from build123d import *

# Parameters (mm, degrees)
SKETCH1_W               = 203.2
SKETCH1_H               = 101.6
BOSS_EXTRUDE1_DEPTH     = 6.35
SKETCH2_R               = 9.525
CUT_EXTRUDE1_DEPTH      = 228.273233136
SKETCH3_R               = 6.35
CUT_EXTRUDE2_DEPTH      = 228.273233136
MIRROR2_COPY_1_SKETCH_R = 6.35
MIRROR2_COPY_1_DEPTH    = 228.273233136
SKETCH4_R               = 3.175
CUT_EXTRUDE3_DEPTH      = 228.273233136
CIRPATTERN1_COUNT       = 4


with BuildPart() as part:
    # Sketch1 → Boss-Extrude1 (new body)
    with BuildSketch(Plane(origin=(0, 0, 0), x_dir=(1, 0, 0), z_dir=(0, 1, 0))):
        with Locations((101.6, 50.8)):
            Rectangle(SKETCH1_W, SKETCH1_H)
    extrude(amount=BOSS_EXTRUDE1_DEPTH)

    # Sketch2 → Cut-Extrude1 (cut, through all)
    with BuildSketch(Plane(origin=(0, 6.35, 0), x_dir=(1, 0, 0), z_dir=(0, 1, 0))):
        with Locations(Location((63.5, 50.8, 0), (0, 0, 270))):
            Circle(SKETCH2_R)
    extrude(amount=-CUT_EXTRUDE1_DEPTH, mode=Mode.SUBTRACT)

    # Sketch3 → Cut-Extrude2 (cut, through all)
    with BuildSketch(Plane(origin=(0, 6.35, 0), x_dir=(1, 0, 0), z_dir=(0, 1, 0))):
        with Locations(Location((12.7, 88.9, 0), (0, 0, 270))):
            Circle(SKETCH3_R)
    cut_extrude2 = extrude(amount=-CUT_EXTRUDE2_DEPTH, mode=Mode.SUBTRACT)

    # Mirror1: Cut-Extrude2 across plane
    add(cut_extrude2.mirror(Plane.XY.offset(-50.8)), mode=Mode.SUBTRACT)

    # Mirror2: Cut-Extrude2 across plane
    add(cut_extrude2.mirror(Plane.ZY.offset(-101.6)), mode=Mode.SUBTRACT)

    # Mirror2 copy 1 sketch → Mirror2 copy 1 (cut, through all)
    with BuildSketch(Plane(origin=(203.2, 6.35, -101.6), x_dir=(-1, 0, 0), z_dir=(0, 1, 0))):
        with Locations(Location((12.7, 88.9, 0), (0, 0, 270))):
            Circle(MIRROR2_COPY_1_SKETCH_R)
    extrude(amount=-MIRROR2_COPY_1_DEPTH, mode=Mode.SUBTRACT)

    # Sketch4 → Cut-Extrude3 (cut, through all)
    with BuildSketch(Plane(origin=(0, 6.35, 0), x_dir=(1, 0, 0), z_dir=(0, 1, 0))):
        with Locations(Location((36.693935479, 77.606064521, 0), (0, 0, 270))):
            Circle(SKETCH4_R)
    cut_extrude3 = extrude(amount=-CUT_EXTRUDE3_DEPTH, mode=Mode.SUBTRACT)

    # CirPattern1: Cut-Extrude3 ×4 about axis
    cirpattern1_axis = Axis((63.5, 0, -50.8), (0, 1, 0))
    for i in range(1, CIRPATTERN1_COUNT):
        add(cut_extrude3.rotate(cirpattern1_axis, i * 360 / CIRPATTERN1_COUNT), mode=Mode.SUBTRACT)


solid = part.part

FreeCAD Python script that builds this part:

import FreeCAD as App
import Part
import Sketcher
Q = App.Units.Quantity

doc = App.newDocument("Part")
params = doc.addObject("Spreadsheet::Sheet", "Params")
for row, (alias, value) in enumerate([
    ("sketch1_width", "8 in"),
    ("sketch1_height", "4 in"),
    ("pad1_length", "0.25 in"),
    ("sketch2_diameter", "0.75 in"),
    ("sketch3_diameter", "0.5 in"),
    ("sketch4_diameter", "0.5 in"),
    ("sketch5_diameter", "0.25 in"),
], start=1):
    params.set(f"A{row}", alias)
    params.set(f"B{row}", "=" + value)
    params.setAlias(f"B{row}", alias)

body = doc.addObject("PartDesign::Body", "Body")

# Sketch on XZ plane
sketch1 = body.newObject("Sketcher::SketchObject", "Sketch")
sketch1.AttachmentSupport = (doc.getObject("XZ_Plane"), [""])
sketch1.MapMode = "FlatFace"
sketch1.addGeometry([
    Part.LineSegment(App.Vector(0, -102, 0), App.Vector(0, 0, 0)),
    Part.LineSegment(App.Vector(0, 0, 0), App.Vector(203, 0, 0)),
    Part.LineSegment(App.Vector(203, 0, 0), App.Vector(203, -102, 0)),
    Part.LineSegment(App.Vector(203, -102, 0), App.Vector(0, -102, 0)),
], False)
sketch1.addConstraint([
    Sketcher.Constraint("Coincident", 0, 2, 1, 1),
    Sketcher.Constraint("Coincident", 1, 2, 2, 1),
    Sketcher.Constraint("Coincident", 2, 2, 3, 1),
    Sketcher.Constraint("Coincident", 3, 2, 0, 1),
    Sketcher.Constraint("Vertical", 0),
    Sketcher.Constraint("Horizontal", 1),
    Sketcher.Constraint("Vertical", 2),
    Sketcher.Constraint("Horizontal", 3),
    Sketcher.Constraint("Coincident", 0, 2, -1, 1),
    Sketcher.Constraint("DistanceX", 1, 1, 1, 2, Q("8 in")),
    Sketcher.Constraint("DistanceY", 0, 1, 0, 2, Q("4 in")),
])
sketch1.setExpression("Constraints[9]", "Params.sketch1_width")
sketch1.setExpression("Constraints[10]", "Params.sketch1_height")
pad1 = body.newObject("PartDesign::Pad", "Pad")
pad1.Profile = sketch1
pad1.setExpression("Length", "Params.pad1_length")
pad1.Reversed = True

# Sketch on XZ plane
sketch2 = body.newObject("Sketcher::SketchObject", "Sketch001")
sketch2.AttachmentSupport = (doc.getObject("XZ_Plane"), [""])
sketch2.MapMode = "FlatFace"
sketch2.AttachmentOffset = App.Placement(App.Vector(0, 0, -0.25 * 25.4), App.Rotation())
sketch2.addGeometry(Part.Circle(App.Vector(64, -51, 0), App.Vector(0, 0, 1), 10), False)
sketch2.addConstraint([
    Sketcher.Constraint("Diameter", 0, Q("0.75 in")),
    Sketcher.Constraint("DistanceY", 0, 3, -1, 1, Q("2 in")),
    Sketcher.Constraint("DistanceX", -1, 1, 0, 3, Q("2.5 in")),
])
sketch2.setExpression("Constraints[0]", "Params.sketch2_diameter")
pocket1 = body.newObject("PartDesign::Pocket", "Pocket")
pocket1.Profile = sketch2
pocket1.Type = "ThroughAll"
pocket1.Reversed = True

# Sketch on XZ plane
sketch3 = body.newObject("Sketcher::SketchObject", "Sketch002")
sketch3.AttachmentSupport = (doc.getObject("XZ_Plane"), [""])
sketch3.MapMode = "FlatFace"
sketch3.AttachmentOffset = App.Placement(App.Vector(0, 0, -0.25 * 25.4), App.Rotation())
sketch3.addGeometry(Part.Circle(App.Vector(13, -89, 0), App.Vector(0, 0, 1), 6), False)
sketch3.addConstraint([
    Sketcher.Constraint("Diameter", 0, Q("0.5 in")),
    Sketcher.Constraint("DistanceX", -1, 1, 0, 3, Q("0.5 in")),
    Sketcher.Constraint("DistanceY", 0, 3, -1, 1, Q("3.5 in")),
])
sketch3.setExpression("Constraints[0]", "Params.sketch3_diameter")
pocket2 = body.newObject("PartDesign::Pocket", "Pocket001")
pocket2.Profile = sketch3
pocket2.Type = "ThroughAll"
pocket2.Reversed = True
doc.recompute()

datumplane = body.newObject("PartDesign::Plane", "DatumPlane")
datumplane.AttachmentSupport = (doc.getObject("XY_Plane"), [""])
datumplane.MapMode = "FlatFace"
datumplane.AttachmentOffset = App.Placement(App.Vector(0, 0, -2 * 25.4), App.Rotation())
mirrored = body.newObject("PartDesign::Mirrored", "Mirrored")
mirrored.Originals = [pocket2]
mirrored.MirrorPlane = (datumplane, [""])
body.Tip = mirrored
doc.recompute()

datumplane2 = body.newObject("PartDesign::Plane", "DatumPlane001")
datumplane2.AttachmentSupport = (doc.getObject("YZ_Plane"), [""])
datumplane2.MapMode = "FlatFace"
datumplane2.AttachmentOffset = App.Placement(App.Vector(0, 0, 4 * 25.4), App.Rotation())
mirrored2 = body.newObject("PartDesign::Mirrored", "Mirrored001")
mirrored2.Originals = [pocket2]
mirrored2.MirrorPlane = (datumplane2, [""])
body.Tip = mirrored2

# Sketch on XZ plane
sketch4 = body.newObject("Sketcher::SketchObject", "Sketch003")
sketch4.AttachmentSupport = (doc.getObject("XZ_Plane"), [""])
sketch4.MapMode = "FlatFace"
sketch4.AttachmentOffset = App.Placement(App.Vector(0, 0, -0.25 * 25.4), App.Rotation())
sketch4.addGeometry(Part.Circle(App.Vector(190, -13, 0), App.Vector(0, 0, 1), 6), False)
sketch4.addConstraint([
    Sketcher.Constraint("Diameter", 0, Q("0.5 in")),
    Sketcher.Constraint("DistanceX", -1, 1, 0, 3, Q("7.5 in")),
    Sketcher.Constraint("DistanceY", 0, 3, -1, 1, Q("0.5 in")),
])
sketch4.setExpression("Constraints[0]", "Params.sketch4_diameter")
pocket3 = body.newObject("PartDesign::Pocket", "Pocket002")
pocket3.Profile = sketch4
pocket3.Type = "ThroughAll"
pocket3.Reversed = True

# Sketch on XZ plane
sketch5 = body.newObject("Sketcher::SketchObject", "Sketch004")
sketch5.AttachmentSupport = (doc.getObject("XZ_Plane"), [""])
sketch5.MapMode = "FlatFace"
sketch5.AttachmentOffset = App.Placement(App.Vector(0, 0, -0.25 * 25.4), App.Rotation())
sketch5.addGeometry(Part.Circle(App.Vector(36.7, -77.6, 0), App.Vector(0, 0, 1), 3.2), False)
sketch5.addConstraint([
    Sketcher.Constraint("Diameter", 0, Q("0.25 in")),
    Sketcher.Constraint("DistanceX", -1, 1, 0, 3, 36.693935),
    Sketcher.Constraint("DistanceY", 0, 3, -1, 1, 77.606065),
])
sketch5.setExpression("Constraints[0]", "Params.sketch5_diameter")
pocket4 = body.newObject("PartDesign::Pocket", "Pocket003")
pocket4.Profile = sketch5
pocket4.Type = "ThroughAll"
pocket4.Reversed = True
doc.recompute()

datumline = body.newObject("PartDesign::Line", "DatumLine")
datumline.Placement = App.Placement(App.Vector(63.5, 0, -50.8), App.Rotation(App.Vector(0, 0, 1), App.Vector(0, 1, 0)))
polarpattern = body.newObject("PartDesign::PolarPattern", "PolarPattern")
polarpattern.Originals = [pocket4]
polarpattern.Axis = (datumline, [""])
polarpattern.Angle = 360
polarpattern.Occurrences = 4
body.Tip = polarpattern

doc.recompute()
